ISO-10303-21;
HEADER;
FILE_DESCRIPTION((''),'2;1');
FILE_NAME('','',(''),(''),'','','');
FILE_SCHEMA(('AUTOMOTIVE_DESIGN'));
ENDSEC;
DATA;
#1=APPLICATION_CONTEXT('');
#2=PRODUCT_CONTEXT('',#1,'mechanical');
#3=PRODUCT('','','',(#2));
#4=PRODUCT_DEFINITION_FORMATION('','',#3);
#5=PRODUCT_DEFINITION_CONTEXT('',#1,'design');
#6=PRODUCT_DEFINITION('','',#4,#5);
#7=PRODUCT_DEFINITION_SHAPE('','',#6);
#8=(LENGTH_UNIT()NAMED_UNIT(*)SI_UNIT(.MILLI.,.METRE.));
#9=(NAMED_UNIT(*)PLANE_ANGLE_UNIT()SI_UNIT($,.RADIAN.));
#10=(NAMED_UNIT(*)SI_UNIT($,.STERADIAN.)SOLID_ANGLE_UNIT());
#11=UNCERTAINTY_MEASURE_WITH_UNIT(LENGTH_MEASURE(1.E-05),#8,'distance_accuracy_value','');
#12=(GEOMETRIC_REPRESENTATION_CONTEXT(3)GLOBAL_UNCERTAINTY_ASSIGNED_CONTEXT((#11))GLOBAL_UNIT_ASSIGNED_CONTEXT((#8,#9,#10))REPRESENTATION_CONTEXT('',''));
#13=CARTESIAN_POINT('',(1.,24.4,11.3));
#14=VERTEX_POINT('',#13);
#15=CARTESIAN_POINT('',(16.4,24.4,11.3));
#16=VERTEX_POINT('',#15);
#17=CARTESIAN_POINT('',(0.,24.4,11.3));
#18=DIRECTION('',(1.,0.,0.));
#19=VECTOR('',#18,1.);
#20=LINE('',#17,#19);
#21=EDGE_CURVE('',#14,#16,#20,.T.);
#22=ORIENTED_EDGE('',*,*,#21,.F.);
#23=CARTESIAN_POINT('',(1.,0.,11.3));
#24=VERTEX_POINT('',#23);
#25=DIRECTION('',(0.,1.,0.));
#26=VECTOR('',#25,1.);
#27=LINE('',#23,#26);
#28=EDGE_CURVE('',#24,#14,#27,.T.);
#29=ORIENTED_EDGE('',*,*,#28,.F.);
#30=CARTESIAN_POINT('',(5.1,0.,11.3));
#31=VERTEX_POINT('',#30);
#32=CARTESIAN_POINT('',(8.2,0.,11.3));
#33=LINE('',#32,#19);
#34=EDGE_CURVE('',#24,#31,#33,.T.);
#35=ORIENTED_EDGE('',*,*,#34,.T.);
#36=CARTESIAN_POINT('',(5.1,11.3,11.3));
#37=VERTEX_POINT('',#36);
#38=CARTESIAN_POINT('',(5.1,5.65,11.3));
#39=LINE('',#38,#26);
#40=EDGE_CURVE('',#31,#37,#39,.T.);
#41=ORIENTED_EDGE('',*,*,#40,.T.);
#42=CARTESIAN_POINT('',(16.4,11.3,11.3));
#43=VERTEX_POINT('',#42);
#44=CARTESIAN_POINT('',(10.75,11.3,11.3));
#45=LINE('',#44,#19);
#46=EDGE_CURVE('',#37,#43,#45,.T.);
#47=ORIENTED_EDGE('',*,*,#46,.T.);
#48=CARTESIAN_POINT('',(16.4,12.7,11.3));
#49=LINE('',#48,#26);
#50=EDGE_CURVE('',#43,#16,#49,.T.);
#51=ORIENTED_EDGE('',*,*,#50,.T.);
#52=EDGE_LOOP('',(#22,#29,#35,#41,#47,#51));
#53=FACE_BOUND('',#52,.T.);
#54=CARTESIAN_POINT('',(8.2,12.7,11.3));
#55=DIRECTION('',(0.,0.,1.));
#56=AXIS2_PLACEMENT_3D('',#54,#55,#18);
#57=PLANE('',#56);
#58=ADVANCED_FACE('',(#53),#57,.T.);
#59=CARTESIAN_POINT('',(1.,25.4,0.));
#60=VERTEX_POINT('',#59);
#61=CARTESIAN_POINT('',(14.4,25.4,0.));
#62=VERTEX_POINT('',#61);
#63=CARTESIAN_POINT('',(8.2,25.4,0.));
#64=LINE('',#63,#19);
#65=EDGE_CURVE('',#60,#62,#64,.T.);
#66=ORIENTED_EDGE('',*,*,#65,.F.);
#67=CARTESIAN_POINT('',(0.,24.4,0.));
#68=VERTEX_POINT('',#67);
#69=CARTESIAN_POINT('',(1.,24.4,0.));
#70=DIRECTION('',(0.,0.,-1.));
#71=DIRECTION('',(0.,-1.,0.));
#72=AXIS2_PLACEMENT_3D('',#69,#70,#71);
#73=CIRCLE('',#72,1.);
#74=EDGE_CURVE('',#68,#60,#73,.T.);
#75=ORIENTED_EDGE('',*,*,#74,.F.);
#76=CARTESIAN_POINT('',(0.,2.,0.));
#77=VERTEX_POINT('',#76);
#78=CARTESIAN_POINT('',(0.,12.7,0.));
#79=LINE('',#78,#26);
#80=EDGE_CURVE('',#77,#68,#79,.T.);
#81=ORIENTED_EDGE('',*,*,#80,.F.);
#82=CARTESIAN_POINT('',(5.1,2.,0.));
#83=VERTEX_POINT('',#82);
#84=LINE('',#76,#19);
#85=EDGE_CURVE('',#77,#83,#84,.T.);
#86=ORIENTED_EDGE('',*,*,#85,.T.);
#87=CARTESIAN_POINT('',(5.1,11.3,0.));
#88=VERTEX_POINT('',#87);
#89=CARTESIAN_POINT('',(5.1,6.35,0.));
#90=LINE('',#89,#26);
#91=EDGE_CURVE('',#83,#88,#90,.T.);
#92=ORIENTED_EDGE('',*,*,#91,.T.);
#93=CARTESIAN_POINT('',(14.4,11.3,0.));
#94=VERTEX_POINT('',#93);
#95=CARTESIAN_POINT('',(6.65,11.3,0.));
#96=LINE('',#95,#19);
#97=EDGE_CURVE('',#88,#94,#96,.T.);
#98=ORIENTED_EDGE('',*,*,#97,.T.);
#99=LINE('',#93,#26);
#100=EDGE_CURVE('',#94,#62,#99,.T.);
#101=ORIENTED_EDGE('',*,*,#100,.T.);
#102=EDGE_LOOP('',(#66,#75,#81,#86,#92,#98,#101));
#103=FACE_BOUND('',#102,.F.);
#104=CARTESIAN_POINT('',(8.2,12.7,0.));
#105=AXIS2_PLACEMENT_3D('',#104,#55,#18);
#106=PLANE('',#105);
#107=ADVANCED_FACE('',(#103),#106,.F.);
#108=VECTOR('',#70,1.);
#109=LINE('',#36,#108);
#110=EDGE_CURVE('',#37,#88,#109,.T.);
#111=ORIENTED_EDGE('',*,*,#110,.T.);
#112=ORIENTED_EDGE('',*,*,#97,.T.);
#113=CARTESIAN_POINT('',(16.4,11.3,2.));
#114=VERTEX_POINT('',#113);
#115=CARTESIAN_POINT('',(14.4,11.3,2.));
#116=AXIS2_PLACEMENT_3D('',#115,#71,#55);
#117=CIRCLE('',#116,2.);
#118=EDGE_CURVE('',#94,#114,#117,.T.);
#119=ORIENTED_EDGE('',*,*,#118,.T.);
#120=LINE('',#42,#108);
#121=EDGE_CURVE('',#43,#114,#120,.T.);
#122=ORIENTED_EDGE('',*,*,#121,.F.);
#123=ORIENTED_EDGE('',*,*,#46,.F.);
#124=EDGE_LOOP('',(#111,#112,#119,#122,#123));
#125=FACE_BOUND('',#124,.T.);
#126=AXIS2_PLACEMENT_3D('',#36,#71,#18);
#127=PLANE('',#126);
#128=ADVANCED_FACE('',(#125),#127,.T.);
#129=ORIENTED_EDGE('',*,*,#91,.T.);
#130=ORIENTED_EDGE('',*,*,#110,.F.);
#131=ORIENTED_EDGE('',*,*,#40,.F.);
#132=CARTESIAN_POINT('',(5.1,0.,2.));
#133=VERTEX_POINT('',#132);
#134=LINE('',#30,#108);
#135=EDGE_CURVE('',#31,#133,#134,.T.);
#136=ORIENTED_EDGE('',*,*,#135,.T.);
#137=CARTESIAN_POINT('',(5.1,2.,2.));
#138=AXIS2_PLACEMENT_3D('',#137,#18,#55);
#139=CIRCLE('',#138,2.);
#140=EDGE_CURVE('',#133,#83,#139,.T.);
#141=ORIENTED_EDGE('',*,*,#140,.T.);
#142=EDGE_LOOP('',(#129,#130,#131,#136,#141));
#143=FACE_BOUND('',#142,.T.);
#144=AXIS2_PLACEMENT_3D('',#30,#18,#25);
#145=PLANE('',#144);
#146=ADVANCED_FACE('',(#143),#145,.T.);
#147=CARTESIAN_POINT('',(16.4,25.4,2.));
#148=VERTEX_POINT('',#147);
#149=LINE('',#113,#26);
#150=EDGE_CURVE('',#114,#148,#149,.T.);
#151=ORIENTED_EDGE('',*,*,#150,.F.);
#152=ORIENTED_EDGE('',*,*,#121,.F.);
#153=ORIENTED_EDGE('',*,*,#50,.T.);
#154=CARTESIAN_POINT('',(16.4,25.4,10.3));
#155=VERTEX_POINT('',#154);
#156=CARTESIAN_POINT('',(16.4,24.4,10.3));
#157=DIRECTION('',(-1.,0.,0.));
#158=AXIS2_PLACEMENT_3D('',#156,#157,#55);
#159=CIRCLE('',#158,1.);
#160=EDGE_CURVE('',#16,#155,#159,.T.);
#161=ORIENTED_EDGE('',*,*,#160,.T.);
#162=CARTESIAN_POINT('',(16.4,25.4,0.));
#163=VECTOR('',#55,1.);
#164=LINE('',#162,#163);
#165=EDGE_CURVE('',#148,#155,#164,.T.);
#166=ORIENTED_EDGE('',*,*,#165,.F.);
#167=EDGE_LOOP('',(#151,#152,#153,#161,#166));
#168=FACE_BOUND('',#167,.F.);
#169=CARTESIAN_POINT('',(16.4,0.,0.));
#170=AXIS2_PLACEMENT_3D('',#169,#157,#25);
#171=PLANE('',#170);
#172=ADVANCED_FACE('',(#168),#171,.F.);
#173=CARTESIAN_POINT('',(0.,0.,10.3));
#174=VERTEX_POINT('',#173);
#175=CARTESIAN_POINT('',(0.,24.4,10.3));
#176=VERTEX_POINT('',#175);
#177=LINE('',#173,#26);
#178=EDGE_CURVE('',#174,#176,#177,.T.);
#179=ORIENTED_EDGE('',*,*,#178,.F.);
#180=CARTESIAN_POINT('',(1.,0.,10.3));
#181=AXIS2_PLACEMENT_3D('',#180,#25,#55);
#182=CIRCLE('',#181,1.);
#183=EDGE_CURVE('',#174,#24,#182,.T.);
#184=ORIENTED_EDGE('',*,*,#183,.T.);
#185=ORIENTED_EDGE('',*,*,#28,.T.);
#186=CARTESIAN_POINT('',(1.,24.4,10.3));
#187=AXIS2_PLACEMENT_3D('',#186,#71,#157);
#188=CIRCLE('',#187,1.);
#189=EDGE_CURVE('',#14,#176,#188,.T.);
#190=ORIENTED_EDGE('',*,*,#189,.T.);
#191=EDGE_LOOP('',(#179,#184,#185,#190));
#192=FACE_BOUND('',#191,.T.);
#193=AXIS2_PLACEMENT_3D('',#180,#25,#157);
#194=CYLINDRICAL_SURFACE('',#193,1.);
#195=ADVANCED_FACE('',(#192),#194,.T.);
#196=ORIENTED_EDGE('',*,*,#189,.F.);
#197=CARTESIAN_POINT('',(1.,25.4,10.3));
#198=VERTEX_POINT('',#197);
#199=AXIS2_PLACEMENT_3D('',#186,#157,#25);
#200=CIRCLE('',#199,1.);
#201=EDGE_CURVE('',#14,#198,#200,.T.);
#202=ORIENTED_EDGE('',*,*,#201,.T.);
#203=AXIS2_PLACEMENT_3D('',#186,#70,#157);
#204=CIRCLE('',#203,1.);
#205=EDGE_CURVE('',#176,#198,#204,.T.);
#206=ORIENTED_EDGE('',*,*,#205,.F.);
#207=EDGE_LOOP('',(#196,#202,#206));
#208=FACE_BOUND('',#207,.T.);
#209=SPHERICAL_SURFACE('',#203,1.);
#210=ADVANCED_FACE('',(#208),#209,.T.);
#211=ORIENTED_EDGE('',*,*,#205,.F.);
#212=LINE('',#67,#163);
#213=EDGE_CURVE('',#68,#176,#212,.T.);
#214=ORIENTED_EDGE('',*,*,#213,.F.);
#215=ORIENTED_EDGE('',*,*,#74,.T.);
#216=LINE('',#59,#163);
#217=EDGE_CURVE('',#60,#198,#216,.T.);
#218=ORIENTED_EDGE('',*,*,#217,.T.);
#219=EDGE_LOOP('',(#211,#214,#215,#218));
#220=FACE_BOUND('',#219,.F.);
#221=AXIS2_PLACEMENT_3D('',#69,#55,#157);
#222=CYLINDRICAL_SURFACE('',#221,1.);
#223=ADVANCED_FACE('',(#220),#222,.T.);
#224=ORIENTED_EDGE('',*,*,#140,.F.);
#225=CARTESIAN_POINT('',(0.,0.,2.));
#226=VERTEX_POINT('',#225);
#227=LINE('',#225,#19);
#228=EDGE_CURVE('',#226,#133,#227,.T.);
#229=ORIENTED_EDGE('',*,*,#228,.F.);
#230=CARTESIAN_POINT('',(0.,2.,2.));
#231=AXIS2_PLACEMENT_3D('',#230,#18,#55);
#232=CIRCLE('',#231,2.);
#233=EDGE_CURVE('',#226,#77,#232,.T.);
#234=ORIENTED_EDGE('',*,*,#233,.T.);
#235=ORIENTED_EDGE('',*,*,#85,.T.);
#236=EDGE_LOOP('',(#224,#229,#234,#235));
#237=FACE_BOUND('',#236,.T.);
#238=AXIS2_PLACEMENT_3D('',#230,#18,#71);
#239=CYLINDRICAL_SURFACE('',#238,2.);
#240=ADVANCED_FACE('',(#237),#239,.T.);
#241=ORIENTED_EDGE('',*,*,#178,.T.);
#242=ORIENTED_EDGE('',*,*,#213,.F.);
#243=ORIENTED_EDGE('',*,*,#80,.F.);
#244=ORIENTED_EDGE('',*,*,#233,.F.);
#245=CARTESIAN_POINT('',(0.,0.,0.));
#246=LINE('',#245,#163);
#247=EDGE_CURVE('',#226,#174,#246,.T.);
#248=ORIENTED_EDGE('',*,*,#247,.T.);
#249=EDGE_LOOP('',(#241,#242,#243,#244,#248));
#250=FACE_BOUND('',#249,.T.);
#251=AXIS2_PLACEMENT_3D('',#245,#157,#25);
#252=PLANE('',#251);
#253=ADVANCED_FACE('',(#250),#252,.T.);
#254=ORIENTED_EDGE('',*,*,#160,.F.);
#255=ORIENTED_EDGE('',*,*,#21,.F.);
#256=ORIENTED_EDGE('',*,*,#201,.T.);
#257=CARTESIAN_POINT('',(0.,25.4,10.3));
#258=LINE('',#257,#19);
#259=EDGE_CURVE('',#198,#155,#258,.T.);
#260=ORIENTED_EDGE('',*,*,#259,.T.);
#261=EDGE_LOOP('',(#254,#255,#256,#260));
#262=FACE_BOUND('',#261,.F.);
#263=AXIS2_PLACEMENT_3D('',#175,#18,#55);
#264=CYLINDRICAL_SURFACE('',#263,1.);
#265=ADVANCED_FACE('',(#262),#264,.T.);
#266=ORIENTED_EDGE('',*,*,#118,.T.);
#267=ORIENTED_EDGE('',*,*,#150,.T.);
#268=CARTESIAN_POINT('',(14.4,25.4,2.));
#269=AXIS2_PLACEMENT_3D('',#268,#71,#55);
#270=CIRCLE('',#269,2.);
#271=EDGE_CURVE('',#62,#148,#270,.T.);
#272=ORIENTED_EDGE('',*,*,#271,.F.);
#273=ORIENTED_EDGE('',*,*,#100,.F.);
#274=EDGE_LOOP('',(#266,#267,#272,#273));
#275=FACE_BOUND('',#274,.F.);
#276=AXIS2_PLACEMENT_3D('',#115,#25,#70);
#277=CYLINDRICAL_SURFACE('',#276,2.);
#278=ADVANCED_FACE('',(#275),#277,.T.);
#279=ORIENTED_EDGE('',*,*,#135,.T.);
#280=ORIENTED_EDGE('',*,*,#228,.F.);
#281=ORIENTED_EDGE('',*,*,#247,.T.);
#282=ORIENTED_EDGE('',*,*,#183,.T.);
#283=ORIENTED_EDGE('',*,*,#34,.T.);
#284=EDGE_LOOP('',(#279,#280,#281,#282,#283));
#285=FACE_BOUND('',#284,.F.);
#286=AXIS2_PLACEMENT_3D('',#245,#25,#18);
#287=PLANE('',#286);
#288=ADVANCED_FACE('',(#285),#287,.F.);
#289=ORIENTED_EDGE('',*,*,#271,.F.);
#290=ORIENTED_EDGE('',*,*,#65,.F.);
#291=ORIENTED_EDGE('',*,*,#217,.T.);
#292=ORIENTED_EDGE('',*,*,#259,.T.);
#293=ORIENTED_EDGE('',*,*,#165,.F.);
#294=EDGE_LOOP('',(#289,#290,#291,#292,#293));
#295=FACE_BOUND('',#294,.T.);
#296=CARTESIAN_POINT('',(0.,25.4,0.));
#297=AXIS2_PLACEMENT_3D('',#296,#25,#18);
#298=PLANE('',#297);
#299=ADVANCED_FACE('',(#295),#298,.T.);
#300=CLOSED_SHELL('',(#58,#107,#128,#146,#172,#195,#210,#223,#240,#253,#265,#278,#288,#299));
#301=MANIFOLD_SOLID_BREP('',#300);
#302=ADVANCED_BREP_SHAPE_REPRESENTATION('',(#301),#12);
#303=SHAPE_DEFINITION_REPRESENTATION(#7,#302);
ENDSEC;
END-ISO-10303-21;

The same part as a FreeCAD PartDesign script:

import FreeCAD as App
import Part
import Sketcher

V = App.Vector


def edges_at(feature, points):
    """Names of the edges that pass closest to the given points."""
    edges = feature.Shape.Edges
    near = lambda p: min(range(len(edges)), key=lambda i: edges[i].distToShape(Part.Vertex(*p))[0])
    return sorted({f"Edge{near(p) + 1}" for p in points})

doc = App.newDocument("Part")
params = doc.addObject("Spreadsheet::Sheet", "Params")
for row, (alias, value) in enumerate([
    ("sketch1_width", "16.4 mm"),
    ("sketch1_height", "25.4 mm"),
    ("pad1_length", "11.3 mm"),
    ("sketch2_width", "11.3 mm"),
    ("pocket1_length", "25 mm"),
    ("fillet_radius", "2 mm"),
    ("fillet2_radius", "1 mm"),
], start=1):
    params.set(f"A{row}", alias)
    params.set(f"B{row}", "=" + value)
    params.setAlias(f"B{row}", alias)

body = doc.addObject("PartDesign::Body", "Body")

sketch1 = doc.addObject("Sketcher::SketchObject", "Sketch")
body.addObject(sketch1)
sketch1.AttachmentSupport = (doc.XY_Plane, [""])
sketch1.MapMode = "FlatFace"
sketch1.addGeometry([
    Part.LineSegment(V(0, 25, 0), V(0, 0, 0)),
    Part.LineSegment(V(0, 0, 0), V(16, 0, 0)),
    Part.LineSegment(V(16, 0, 0), V(16, 25, 0)),
    Part.LineSegment(V(16, 25, 0), V(0, 25, 0)),
], False)
sketch1.addConstraint([
    Sketcher.Constraint("Coincident", 0, 2, 1, 1),
    Sketcher.Constraint("Coincident", 1, 2, 2, 1),
    Sketcher.Constraint("Coincident", 2, 2, 3, 1),
    Sketcher.Constraint("Coincident", 3, 2, 0, 1),
    Sketcher.Constraint("Vertical", 0),
    Sketcher.Constraint("Horizontal", 1),
    Sketcher.Constraint("Vertical", 2),
    Sketcher.Constraint("Horizontal", 3),
    Sketcher.Constraint("Coincident", 0, 2, -1, 1),
    Sketcher.Constraint("DistanceX", 1, 1, 1, 2, 16.4),
    Sketcher.Constraint("DistanceY", 0, 2, 0, 1, 25.4),
])
sketch1.setExpression("Constraints[9]", "Params.sketch1_width")
sketch1.setExpression("Constraints[10]", "Params.sketch1_height")
pad1 = doc.addObject("PartDesign::Pad", "Pad")
body.addObject(pad1)
pad1.Profile = sketch1
pad1.setExpression("Length", "Params.pad1_length")

sketch2 = doc.addObject("Sketcher::SketchObject", "Sketch001")
body.addObject(sketch2)
sketch2.AttachmentSupport = (doc.XY_Plane, [""])
sketch2.MapMode = "FlatFace"
sketch2.AttachmentOffset = App.Placement(V(0, 0, 11.3), App.Rotation())
sketch2.addGeometry([
    Part.LineSegment(V(5, 11, 0), V(5, 0, 0)),
    Part.LineSegment(V(5, 0, 0), V(16, 0, 0)),
    Part.LineSegment(V(16, 0, 0), V(16, 11, 0)),
    Part.LineSegment(V(16, 11, 0), V(5, 11, 0)),
], False)
sketch2.addConstraint([
    Sketcher.Constraint("Coincident", 0, 2, 1, 1),
    Sketcher.Constraint("Coincident", 1, 2, 2, 1),
    Sketcher.Constraint("Coincident", 2, 2, 3, 1),
    Sketcher.Constraint("Coincident", 3, 2, 0, 1),
    Sketcher.Constraint("Vertical", 0),
    Sketcher.Constraint("Horizontal", 1),
    Sketcher.Constraint("Vertical", 2),
    Sketcher.Constraint("Horizontal", 3),
    Sketcher.Constraint("PointOnObject", 0, 2, -1),
    Sketcher.Constraint("Equal", 3, 0),
    Sketcher.Constraint("DistanceX", 1, 1, 1, 2, 11.3),
    Sketcher.Constraint("DistanceX", -1, 1, 0, 2, 5.1),
])
sketch2.setExpression("Constraints[10]", "Params.sketch2_width")
pocket1 = doc.addObject("PartDesign::Pocket", "Pocket")
body.addObject(pocket1)
pocket1.Profile = sketch2
pocket1.setExpression("Length", "Params.pocket1_length")
doc.recompute()

fillet = doc.addObject("PartDesign::Fillet", "Fillet")
body.addObject(fillet)
fillet.Base = (pocket1, edges_at(pocket1, [(16.4, 18.35, 0), (2.55, 0, 0)]))
fillet.setExpression("Radius", "Params.fillet_radius")
doc.recompute()

fillet2 = doc.addObject("PartDesign::Fillet", "Fillet001")
body.addObject(fillet2)
fillet2.Base = (fillet, edges_at(fillet, [(0, 25.4, 5.65), (0, 12.7, 11.3), (8.2, 25.4, 11.3)]))
fillet2.setExpression("Radius", "Params.fillet2_radius")

doc.recompute()
